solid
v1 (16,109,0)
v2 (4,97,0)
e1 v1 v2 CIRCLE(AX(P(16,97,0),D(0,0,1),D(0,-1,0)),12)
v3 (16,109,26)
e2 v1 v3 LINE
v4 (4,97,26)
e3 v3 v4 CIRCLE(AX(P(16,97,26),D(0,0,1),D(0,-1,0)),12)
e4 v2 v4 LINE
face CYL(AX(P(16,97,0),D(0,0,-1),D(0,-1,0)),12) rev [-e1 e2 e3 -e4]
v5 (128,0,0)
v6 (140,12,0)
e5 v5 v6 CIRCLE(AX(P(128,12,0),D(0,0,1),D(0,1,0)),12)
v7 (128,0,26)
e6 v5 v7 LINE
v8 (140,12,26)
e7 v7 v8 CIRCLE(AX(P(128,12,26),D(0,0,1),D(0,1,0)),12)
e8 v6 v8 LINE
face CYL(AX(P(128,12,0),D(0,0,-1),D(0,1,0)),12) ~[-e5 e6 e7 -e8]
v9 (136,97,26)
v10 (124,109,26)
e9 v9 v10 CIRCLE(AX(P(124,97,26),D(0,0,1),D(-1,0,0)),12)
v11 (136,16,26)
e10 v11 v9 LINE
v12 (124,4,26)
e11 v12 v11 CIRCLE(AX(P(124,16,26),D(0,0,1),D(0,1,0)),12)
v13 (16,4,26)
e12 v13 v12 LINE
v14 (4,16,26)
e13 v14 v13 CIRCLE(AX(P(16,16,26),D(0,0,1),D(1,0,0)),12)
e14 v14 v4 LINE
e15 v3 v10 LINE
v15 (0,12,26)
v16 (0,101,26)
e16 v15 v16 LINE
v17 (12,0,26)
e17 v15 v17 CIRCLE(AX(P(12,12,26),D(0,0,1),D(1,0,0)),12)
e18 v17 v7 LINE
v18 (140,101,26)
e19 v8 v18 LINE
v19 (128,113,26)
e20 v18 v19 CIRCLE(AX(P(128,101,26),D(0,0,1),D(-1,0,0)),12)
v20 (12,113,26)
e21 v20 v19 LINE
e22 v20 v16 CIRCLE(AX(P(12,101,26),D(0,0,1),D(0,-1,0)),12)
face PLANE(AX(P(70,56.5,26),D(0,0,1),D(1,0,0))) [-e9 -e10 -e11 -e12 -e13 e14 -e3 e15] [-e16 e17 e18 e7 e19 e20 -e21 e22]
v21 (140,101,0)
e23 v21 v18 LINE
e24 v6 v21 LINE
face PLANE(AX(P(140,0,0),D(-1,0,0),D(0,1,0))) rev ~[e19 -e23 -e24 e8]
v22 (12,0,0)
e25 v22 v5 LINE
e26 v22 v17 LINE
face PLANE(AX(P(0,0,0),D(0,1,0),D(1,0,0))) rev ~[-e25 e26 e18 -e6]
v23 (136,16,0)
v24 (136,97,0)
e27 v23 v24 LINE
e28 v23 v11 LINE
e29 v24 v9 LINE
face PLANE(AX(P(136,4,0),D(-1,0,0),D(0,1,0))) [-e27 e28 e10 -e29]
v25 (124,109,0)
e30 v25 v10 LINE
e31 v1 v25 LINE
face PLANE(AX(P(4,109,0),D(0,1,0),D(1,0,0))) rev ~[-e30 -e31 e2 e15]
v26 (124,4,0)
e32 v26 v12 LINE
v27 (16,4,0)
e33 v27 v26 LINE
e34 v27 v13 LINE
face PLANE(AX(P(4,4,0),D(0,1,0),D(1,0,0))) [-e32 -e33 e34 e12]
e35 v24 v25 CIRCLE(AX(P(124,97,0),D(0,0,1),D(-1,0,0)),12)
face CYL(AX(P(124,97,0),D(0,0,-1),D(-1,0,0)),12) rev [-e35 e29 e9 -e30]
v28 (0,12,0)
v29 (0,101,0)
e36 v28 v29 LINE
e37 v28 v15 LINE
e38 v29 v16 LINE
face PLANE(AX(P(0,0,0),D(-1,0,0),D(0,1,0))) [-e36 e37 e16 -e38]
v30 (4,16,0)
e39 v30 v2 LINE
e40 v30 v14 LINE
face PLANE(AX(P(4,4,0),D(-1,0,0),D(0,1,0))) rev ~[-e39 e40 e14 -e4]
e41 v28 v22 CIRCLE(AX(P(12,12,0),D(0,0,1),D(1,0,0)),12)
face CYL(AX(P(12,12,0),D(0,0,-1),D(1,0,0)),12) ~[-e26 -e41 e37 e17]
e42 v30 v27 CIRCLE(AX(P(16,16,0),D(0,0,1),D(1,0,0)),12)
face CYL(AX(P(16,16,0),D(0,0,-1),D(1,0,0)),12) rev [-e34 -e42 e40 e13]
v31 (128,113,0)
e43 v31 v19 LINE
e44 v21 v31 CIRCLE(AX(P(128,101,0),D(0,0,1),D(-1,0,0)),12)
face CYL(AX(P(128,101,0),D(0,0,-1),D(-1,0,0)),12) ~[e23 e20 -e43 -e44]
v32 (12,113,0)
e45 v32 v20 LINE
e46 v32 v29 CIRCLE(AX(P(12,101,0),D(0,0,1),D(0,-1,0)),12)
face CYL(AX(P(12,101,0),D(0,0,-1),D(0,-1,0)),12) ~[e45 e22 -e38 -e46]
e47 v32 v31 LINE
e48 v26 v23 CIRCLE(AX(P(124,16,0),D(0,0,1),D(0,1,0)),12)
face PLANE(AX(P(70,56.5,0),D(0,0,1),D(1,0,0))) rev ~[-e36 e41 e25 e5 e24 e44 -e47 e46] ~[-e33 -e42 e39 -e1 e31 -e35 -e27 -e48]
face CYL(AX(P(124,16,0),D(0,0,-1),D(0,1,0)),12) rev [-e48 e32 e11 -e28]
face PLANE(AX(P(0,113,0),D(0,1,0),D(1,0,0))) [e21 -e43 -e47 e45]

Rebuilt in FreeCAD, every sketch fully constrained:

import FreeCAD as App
import Part
import Sketcher
from FreeCAD import Vector


def add_polygon(sketch, points):
    """Adds a closed chain of lines whose ends are joined by coincident constraints."""
    first, n = sketch.GeometryCount, len(points)
    for a, b in zip(points, points[1:] + points[:1]):
        sketch.addGeometry(Part.LineSegment(App.Vector(*a, 0), App.Vector(*b, 0)), False)
    for i in range(n):
        sketch.addConstraint(Sketcher.Constraint("Coincident", first + i, 2, first + (i + 1) % n, 1))

doc = App.newDocument("Part")
body = doc.addObject("PartDesign::Body", "Body")

# Sketch on XY plane
sketch1 = body.newObject("Sketcher::SketchObject", "Sketch")
sketch1.AttachmentSupport = (doc.getObject("XY_Plane"), [""])
sketch1.MapMode = "FlatFace"
sketch1.addGeometry(Part.Circle(Vector(12, 12, 0), Vector(0, 0, 1), 12), False)
sketch1.addConstraint([
    Sketcher.Constraint("Diameter", 0, 24.0),
    Sketcher.Constraint("DistanceX", -1, 1, 0, 3, 12.0),
    Sketcher.Constraint("DistanceY", -1, 1, 0, 3, 12.0),
])
pad1 = body.newObject("PartDesign::Pad", "Pad")
pad1.Profile = sketch1
pad1.Length = 26
body2 = doc.addObject("PartDesign::Body", "Body001")

# Sketch on XY plane
sketch2 = body2.newObject("Sketcher::SketchObject", "Sketch001")
sketch2.AttachmentSupport = (doc.getObject("XY_Plane001"), [""])
sketch2.MapMode = "FlatFace"
add_polygon(sketch2, [(0, 12), (0, 0), (12, 0), (12, 12)])  # lines 0-3
sketch2.addConstraint([
    Sketcher.Constraint("Vertical", 0),
    Sketcher.Constraint("Horizontal", 1),
    Sketcher.Constraint("Vertical", 2),
    Sketcher.Constraint("Horizontal", 3),
    Sketcher.Constraint("Coincident", 0, 2, -1, 1),
    Sketcher.Constraint("Equal", 3, 0),
    Sketcher.Constraint("DistanceX", 1, 1, 1, 2, 12.0),
])
pad2 = body2.newObject("PartDesign::Pad", "Pad001")
pad2.Profile = sketch2
pad2.Length = 26
doc.recompute()

boolean = body2.newObject("PartDesign::Boolean", "Boolean")
boolean.Type = "Cut"
boolean.addObjects([body])
body3 = doc.addObject("PartDesign::Body", "Body002")
doc.recompute()

body2.Placement = App.Placement(Vector(4, 4, 0), App.Rotation(Vector(0, 0, 1), 0))
boolean2 = body3.newObject("PartDesign::Boolean", "Boolean001")
boolean2.Type = "Fuse"
boolean2.addObjects([body2])
body4 = doc.addObject("PartDesign::Body", "Body003")

# Sketch on XY plane
sketch3 = body4.newObject("Sketcher::SketchObject", "Sketch002")
sketch3.AttachmentSupport = (doc.getObject("XY_Plane003"), [""])
sketch3.MapMode = "FlatFace"
sketch3.addGeometry(Part.Circle(Vector(12, 12, 0), Vector(0, 0, 1), 12), False)
sketch3.addConstraint([
    Sketcher.Constraint("Diameter", 0, 24.0),
    Sketcher.Constraint("DistanceX", -1, 1, 0, 3, 12.0),
    Sketcher.Constraint("DistanceY", -1, 1, 0, 3, 12.0),
])
pad3 = body4.newObject("PartDesign::Pad", "Pad002")
pad3.Profile = sketch3
pad3.Length = 26
body5 = doc.addObject("PartDesign::Body", "Body004")

# Sketch on XY plane
sketch4 = body5.newObject("Sketcher::SketchObject", "Sketch003")
sketch4.AttachmentSupport = (doc.getObject("XY_Plane004"), [""])
sketch4.MapMode = "FlatFace"
add_polygon(sketch4, [(0, 12), (0, 0), (12, 0), (12, 12)])  # lines 0-3
sketch4.addConstraint([
    Sketcher.Constraint("Vertical", 0),
    Sketcher.Constraint("Horizontal", 1),
    Sketcher.Constraint("Vertical", 2),
    Sketcher.Constraint("Horizontal", 3),
    Sketcher.Constraint("Coincident", 0, 2, -1, 1),
    Sketcher.Constraint("Equal", 3, 0),
    Sketcher.Constraint("DistanceX", 1, 1, 1, 2, 12.0),
])
pad4 = body5.newObject("PartDesign::Pad", "Pad003")
pad4.Profile = sketch4
pad4.Length = 26
doc.recompute()

boolean3 = body5.newObject("PartDesign::Boolean", "Boolean002")
boolean3.Type = "Cut"
boolean3.addObjects([body4])
body6 = doc.addObject("PartDesign::Body", "Body005")
doc.recompute()

body5.Placement = App.Placement(Vector(136, 4, 0), App.Rotation(Vector(0, 0, 1), 90))
boolean4 = body6.newObject("PartDesign::Boolean", "Boolean003")
boolean4.Type = "Fuse"
boolean4.addObjects([body5])
body7 = doc.addObject("PartDesign::Body", "Body006")

# Sketch on XY plane
sketch5 = body7.newObject("Sketcher::SketchObject", "Sketch004")
sketch5.AttachmentSupport = (doc.getObject("XY_Plane006"), [""])
sketch5.MapMode = "FlatFace"
sketch5.addGeometry(Part.Circle(Vector(12, 12, 0), Vector(0, 0, 1), 12), False)
sketch5.addConstraint([
    Sketcher.Constraint("Diameter", 0, 24.0),
    Sketcher.Constraint("DistanceX", -1, 1, 0, 3, 12.0),
    Sketcher.Constraint("DistanceY", -1, 1, 0, 3, 12.0),
])
pad5 = body7.newObject("PartDesign::Pad", "Pad004")
pad5.Profile = sketch5
pad5.Length = 26
body8 = doc.addObject("PartDesign::Body", "Body007")

# Sketch on XY plane
sketch6 = body8.newObject("Sketcher::SketchObject", "Sketch005")
sketch6.AttachmentSupport = (doc.getObject("XY_Plane007"), [""])
sketch6.MapMode = "FlatFace"
add_polygon(sketch6, [(0, 12), (0, 0), (12, 0), (12, 12)])  # lines 0-3
sketch6.addConstraint([
    Sketcher.Constraint("Vertical", 0),
    Sketcher.Constraint("Horizontal", 1),
    Sketcher.Constraint("Vertical", 2),
    Sketcher.Constraint("Horizontal", 3),
    Sketcher.Constraint("Coincident", 0, 2, -1, 1),
    Sketcher.Constraint("Equal", 3, 0),
    Sketcher.Constraint("DistanceX", 1, 1, 1, 2, 12.0),
])
pad6 = body8.newObject("PartDesign::Pad", "Pad005")
pad6.Profile = sketch6
pad6.Length = 26
doc.recompute()

boolean5 = body8.newObject("PartDesign::Boolean", "Boolean004")
boolean5.Type = "Cut"
boolean5.addObjects([body7])
body9 = doc.addObject("PartDesign::Body", "Body008")
doc.recompute()

body8.Placement = App.Placement(Vector(136, 109, 0), App.Rotation(Vector(0, 0, 1), 180))
boolean6 = body9.newObject("PartDesign::Boolean", "Boolean005")
boolean6.Type = "Fuse"
boolean6.addObjects([body8])
body10 = doc.addObject("PartDesign::Body", "Body009")

# Sketch on XY plane
sketch7 = body10.newObject("Sketcher::SketchObject", "Sketch006")
sketch7.AttachmentSupport = (doc.getObject("XY_Plane009"), [""])
sketch7.MapMode = "FlatFace"
sketch7.addGeometry(Part.Circle(Vector(12, 12, 0), Vector(0, 0, 1), 12), False)
sketch7.addConstraint([
    Sketcher.Constraint("Diameter", 0, 24.0),
    Sketcher.Constraint("DistanceX", -1, 1, 0, 3, 12.0),
    Sketcher.Constraint("DistanceY", -1, 1, 0, 3, 12.0),
])
pad7 = body10.newObject("PartDesign::Pad", "Pad006")
pad7.Profile = sketch7
pad7.Length = 26
body11 = doc.addObject("PartDesign::Body", "Body010")

# Sketch on XY plane
sketch8 = body11.newObject("Sketcher::SketchObject", "Sketch007")
sketch8.AttachmentSupport = (doc.getObject("XY_Plane010"), [""])
sketch8.MapMode = "FlatFace"
add_polygon(sketch8, [(0, 12), (0, 0), (12, 0), (12, 12)])  # lines 0-3
sketch8.addConstraint([
    Sketcher.Constraint("Vertical", 0),
    Sketcher.Constraint("Horizontal", 1),
    Sketcher.Constraint("Vertical", 2),
    Sketcher.Constraint("Horizontal", 3),
    Sketcher.Constraint("Coincident", 0, 2, -1, 1),
    Sketcher.Constraint("Equal", 3, 0),
    Sketcher.Constraint("DistanceX", 1, 1, 1, 2, 12.0),
])
pad8 = body11.newObject("PartDesign::Pad", "Pad007")
pad8.Profile = sketch8
pad8.Length = 26
doc.recompute()

boolean7 = body11.newObject("PartDesign::Boolean", "Boolean006")
boolean7.Type = "Cut"
boolean7.addObjects([body10])
body12 = doc.addObject("PartDesign::Body", "Body011")
body12.AllowCompound = True
doc.recompute()

body11.Placement = App.Placement(Vector(4, 109, 0), App.Rotation(Vector(0, 0, -1), 90))
boolean8 = body12.newObject("PartDesign::Boolean", "Boolean007")
boolean8.Type = "Fuse"
boolean8.addObjects([body11])
doc.recompute()

boolean9 = body12.newObject("PartDesign::Boolean", "Boolean008")
boolean9.Type = "Fuse"
boolean9.addObjects([body3])
doc.recompute()

boolean10 = body12.newObject("PartDesign::Boolean", "Boolean009")
boolean10.Type = "Fuse"
boolean10.addObjects([body6])
doc.recompute()

boolean11 = body12.newObject("PartDesign::Boolean", "Boolean010")
boolean11.Type = "Fuse"
boolean11.addObjects([body9])
body13 = doc.addObject("PartDesign::Body", "Body012")

# Sketch on XY plane
sketch9 = body13.newObject("Sketcher::SketchObject", "Sketch008")
sketch9.AttachmentSupport = (doc.getObject("XY_Plane012"), [""])
sketch9.MapMode = "FlatFace"
add_polygon(sketch9, [(4, 109), (4, 4), (136, 4), (136, 109)])  # lines 0-3
sketch9.addConstraint([
    Sketcher.Constraint("Vertical", 0),
    Sketcher.Constraint("Horizontal", 1),
    Sketcher.Constraint("Vertical", 2),
    Sketcher.Constraint("Horizontal", 3),
    Sketcher.Constraint("DistanceX", 1, 1, 1, 2, 132.0),
    Sketcher.Constraint("DistanceY", 0, 2, 0, 1, 105.0),
    Sketcher.Constraint("DistanceX", -1, 1, 0, 2, 4.0),
    Sketcher.Constraint("DistanceY", -1, 1, 0, 2, 4.0),
])
pad9 = body13.newObject("PartDesign::Pad", "Pad008")
pad9.Profile = sketch9
pad9.Length = 26
doc.recompute()

boolean12 = body13.newObject("PartDesign::Boolean", "Boolean011")
boolean12.Type = "Cut"
boolean12.addObjects([body12])
body14 = doc.addObject("PartDesign::Body", "Body013")

# Sketch on XY plane
sketch10 = body14.newObject("Sketcher::SketchObject", "Sketch009")
sketch10.AttachmentSupport = (doc.getObject("XY_Plane013"), [""])
sketch10.MapMode = "FlatFace"
sketch10.addGeometry(Part.Circle(Vector(12, 12, 0), Vector(0, 0, 1), 12), False)
sketch10.addConstraint([
    Sketcher.Constraint("Diameter", 0, 24.0),
    Sketcher.Constraint("DistanceX", -1, 1, 0, 3, 12.0),
    Sketcher.Constraint("DistanceY", -1, 1, 0, 3, 12.0),
])
pad10 = body14.newObject("PartDesign::Pad", "Pad009")
pad10.Profile = sketch10
pad10.Length = 26
body15 = doc.addObject("PartDesign::Body", "Body014")

# Sketch on XY plane
sketch11 = body15.newObject("Sketcher::SketchObject", "Sketch010")
sketch11.AttachmentSupport = (doc.getObject("XY_Plane014"), [""])
sketch11.MapMode = "FlatFace"
add_polygon(sketch11, [(0, 12), (0, 0), (12, 0), (12, 12)])  # lines 0-3
sketch11.addConstraint([
    Sketcher.Constraint("Vertical", 0),
    Sketcher.Constraint("Horizontal", 1),
    Sketcher.Constraint("Vertical", 2),
    Sketcher.Constraint("Horizontal", 3),
    Sketcher.Constraint("Coincident", 0, 2, -1, 1),
    Sketcher.Constraint("Equal", 3, 0),
    Sketcher.Constraint("DistanceX", 1, 1, 1, 2, 12.0),
])
pad11 = body15.newObject("PartDesign::Pad", "Pad010")
pad11.Profile = sketch11
pad11.Length = 26
doc.recompute()

boolean13 = body15.newObject("PartDesign::Boolean", "Boolean012")
boolean13.Type = "Cut"
boolean13.addObjects([body14])
body16 = doc.addObject("PartDesign::Body", "Body015")

# Sketch on XY plane
sketch12 = body16.newObject("Sketcher::SketchObject", "Sketch011")
sketch12.AttachmentSupport = (doc.getObject("XY_Plane015"), [""])
sketch12.MapMode = "FlatFace"
sketch12.addGeometry(Part.Circle(Vector(12, 12, 0), Vector(0, 0, 1), 12), False)
sketch12.addConstraint([
    Sketcher.Constraint("Diameter", 0, 24.0),
    Sketcher.Constraint("DistanceX", -1, 1, 0, 3, 12.0),
    Sketcher.Constraint("DistanceY", -1, 1, 0, 3, 12.0),
])
pad12 = body16.newObject("PartDesign::Pad", "Pad011")
pad12.Profile = sketch12
pad12.Length = 26
body17 = doc.addObject("PartDesign::Body", "Body016")

# Sketch on XY plane
sketch13 = body17.newObject("Sketcher::SketchObject", "Sketch012")
sketch13.AttachmentSupport = (doc.getObject("XY_Plane016"), [""])
sketch13.MapMode = "FlatFace"
add_polygon(sketch13, [(0, 12), (0, 0), (12, 0), (12, 12)])  # lines 0-3
sketch13.addConstraint([
    Sketcher.Constraint("Vertical", 0),
    Sketcher.Constraint("Horizontal", 1),
    Sketcher.Constraint("Vertical", 2),
    Sketcher.Constraint("Horizontal", 3),
    Sketcher.Constraint("Coincident", 0, 2, -1, 1),
    Sketcher.Constraint("Equal", 3, 0),
    Sketcher.Constraint("DistanceX", 1, 1, 1, 2, 12.0),
])
pad13 = body17.newObject("PartDesign::Pad", "Pad012")
pad13.Profile = sketch13
pad13.Length = 26
doc.recompute()

boolean14 = body17.newObject("PartDesign::Boolean", "Boolean013")
boolean14.Type = "Cut"
boolean14.addObjects([body16])
body18 = doc.addObject("PartDesign::Body", "Body017")
doc.recompute()

body17.Placement = App.Placement(Vector(140, 0, 0), App.Rotation(Vector(0, 0, 1), 90))
boolean15 = body18.newObject("PartDesign::Boolean", "Boolean014")
boolean15.Type = "Fuse"
boolean15.addObjects([body17])
body19 = doc.addObject("PartDesign::Body", "Body018")

# Sketch on XY plane
sketch14 = body19.newObject("Sketcher::SketchObject", "Sketch013")
sketch14.AttachmentSupport = (doc.getObject("XY_Plane018"), [""])
sketch14.MapMode = "FlatFace"
sketch14.addGeometry(Part.Circle(Vector(12, 12, 0), Vector(0, 0, 1), 12), False)
sketch14.addConstraint([
    Sketcher.Constraint("Diameter", 0, 24.0),
    Sketcher.Constraint("DistanceX", -1, 1, 0, 3, 12.0),
    Sketcher.Constraint("DistanceY", -1, 1, 0, 3, 12.0),
])
pad14 = body19.newObject("PartDesign::Pad", "Pad013")
pad14.Profile = sketch14
pad14.Length = 26
body20 = doc.addObject("PartDesign::Body", "Body019")

# Sketch on XY plane
sketch15 = body20.newObject("Sketcher::SketchObject", "Sketch014")
sketch15.AttachmentSupport = (doc.getObject("XY_Plane019"), [""])
sketch15.MapMode = "FlatFace"
add_polygon(sketch15, [(0, 12), (0, 0), (12, 0), (12, 12)])  # lines 0-3
sketch15.addConstraint([
    Sketcher.Constraint("Vertical", 0),
    Sketcher.Constraint("Horizontal", 1),
    Sketcher.Constraint("Vertical", 2),
    Sketcher.Constraint("Horizontal", 3),
    Sketcher.Constraint("Coincident", 0, 2, -1, 1),
    Sketcher.Constraint("Equal", 3, 0),
    Sketcher.Constraint("DistanceX", 1, 1, 1, 2, 12.0),
])
pad15 = body20.newObject("PartDesign::Pad", "Pad014")
pad15.Profile = sketch15
pad15.Length = 26
doc.recompute()

boolean16 = body20.newObject("PartDesign::Boolean", "Boolean015")
boolean16.Type = "Cut"
boolean16.addObjects([body19])
body21 = doc.addObject("PartDesign::Body", "Body020")
doc.recompute()

body20.Placement = App.Placement(Vector(140, 113, 0), App.Rotation(Vector(0, 0, 1), 180))
boolean17 = body21.newObject("PartDesign::Boolean", "Boolean016")
boolean17.Type = "Fuse"
boolean17.addObjects([body20])
body22 = doc.addObject("PartDesign::Body", "Body021")

# Sketch on XY plane
sketch16 = body22.newObject("Sketcher::SketchObject", "Sketch015")
sketch16.AttachmentSupport = (doc.getObject("XY_Plane021"), [""])
sketch16.MapMode = "FlatFace"
sketch16.addGeometry(Part.Circle(Vector(12, 12, 0), Vector(0, 0, 1), 12), False)
sketch16.addConstraint([
    Sketcher.Constraint("Diameter", 0, 24.0),
    Sketcher.Constraint("DistanceX", -1, 1, 0, 3, 12.0),
    Sketcher.Constraint("DistanceY", -1, 1, 0, 3, 12.0),
])
pad16 = body22.newObject("PartDesign::Pad", "Pad015")
pad16.Profile = sketch16
pad16.Length = 26
body23 = doc.addObject("PartDesign::Body", "Body022")

# Sketch on XY plane
sketch17 = body23.newObject("Sketcher::SketchObject", "Sketch016")
sketch17.AttachmentSupport = (doc.getObject("XY_Plane022"), [""])
sketch17.MapMode = "FlatFace"
add_polygon(sketch17, [(0, 12), (0, 0), (12, 0), (12, 12)])  # lines 0-3
sketch17.addConstraint([
    Sketcher.Constraint("Vertical", 0),
    Sketcher.Constraint("Horizontal", 1),
    Sketcher.Constraint("Vertical", 2),
    Sketcher.Constraint("Horizontal", 3),
    Sketcher.Constraint("Coincident", 0, 2, -1, 1),
    Sketcher.Constraint("Equal", 3, 0),
    Sketcher.Constraint("DistanceX", 1, 1, 1, 2, 12.0),
])
pad17 = body23.newObject("PartDesign::Pad", "Pad016")
pad17.Profile = sketch17
pad17.Length = 26
doc.recompute()

boolean18 = body23.newObject("PartDesign::Boolean", "Boolean017")
boolean18.Type = "Cut"
boolean18.addObjects([body22])
body24 = doc.addObject("PartDesign::Body", "Body023")
body24.AllowCompound = True
doc.recompute()

body23.Placement = App.Placement(Vector(0, 113, 0), App.Rotation(Vector(0, 0, -1), 90))
boolean19 = body24.newObject("PartDesign::Boolean", "Boolean018")
boolean19.Type = "Fuse"
boolean19.addObjects([body23])
doc.recompute()

boolean20 = body24.newObject("PartDesign::Boolean", "Boolean019")
boolean20.Type = "Fuse"
boolean20.addObjects([body15])
doc.recompute()

boolean21 = body24.newObject("PartDesign::Boolean", "Boolean020")
boolean21.Type = "Fuse"
boolean21.addObjects([body18])
doc.recompute()

boolean22 = body24.newObject("PartDesign::Boolean", "Boolean021")
boolean22.Type = "Fuse"
boolean22.addObjects([body21])
body25 = doc.addObject("PartDesign::Body", "Body024")

# Sketch on XY plane
sketch18 = body25.newObject("Sketcher::SketchObject", "Sketch017")
sketch18.AttachmentSupport = (doc.getObject("XY_Plane024"), [""])
sketch18.MapMode = "FlatFace"
add_polygon(sketch18, [(0, 113), (0, 0), (140, 0), (140, 113)])  # lines 0-3
sketch18.addConstraint([
    Sketcher.Constraint("Vertical", 0),
    Sketcher.Constraint("Horizontal", 1),
    Sketcher.Constraint("Vertical", 2),
    Sketcher.Constraint("Horizontal", 3),
    Sketcher.Constraint("Coincident", 0, 2, -1, 1),
    Sketcher.Constraint("DistanceX", 1, 1, 1, 2, 140.0),
    Sketcher.Constraint("DistanceY", 0, 2, 0, 1, 113.0),
])
pad18 = body25.newObject("PartDesign::Pad", "Pad017")
pad18.Profile = sketch18
pad18.Length = 26
doc.recompute()

boolean23 = body25.newObject("PartDesign::Boolean", "Boolean022")
boolean23.Type = "Cut"
boolean23.addObjects([body24])
doc.recompute()

boolean24 = body25.newObject("PartDesign::Boolean", "Boolean023")
boolean24.Type = "Cut"
boolean24.addObjects([body13])

doc.recompute()
